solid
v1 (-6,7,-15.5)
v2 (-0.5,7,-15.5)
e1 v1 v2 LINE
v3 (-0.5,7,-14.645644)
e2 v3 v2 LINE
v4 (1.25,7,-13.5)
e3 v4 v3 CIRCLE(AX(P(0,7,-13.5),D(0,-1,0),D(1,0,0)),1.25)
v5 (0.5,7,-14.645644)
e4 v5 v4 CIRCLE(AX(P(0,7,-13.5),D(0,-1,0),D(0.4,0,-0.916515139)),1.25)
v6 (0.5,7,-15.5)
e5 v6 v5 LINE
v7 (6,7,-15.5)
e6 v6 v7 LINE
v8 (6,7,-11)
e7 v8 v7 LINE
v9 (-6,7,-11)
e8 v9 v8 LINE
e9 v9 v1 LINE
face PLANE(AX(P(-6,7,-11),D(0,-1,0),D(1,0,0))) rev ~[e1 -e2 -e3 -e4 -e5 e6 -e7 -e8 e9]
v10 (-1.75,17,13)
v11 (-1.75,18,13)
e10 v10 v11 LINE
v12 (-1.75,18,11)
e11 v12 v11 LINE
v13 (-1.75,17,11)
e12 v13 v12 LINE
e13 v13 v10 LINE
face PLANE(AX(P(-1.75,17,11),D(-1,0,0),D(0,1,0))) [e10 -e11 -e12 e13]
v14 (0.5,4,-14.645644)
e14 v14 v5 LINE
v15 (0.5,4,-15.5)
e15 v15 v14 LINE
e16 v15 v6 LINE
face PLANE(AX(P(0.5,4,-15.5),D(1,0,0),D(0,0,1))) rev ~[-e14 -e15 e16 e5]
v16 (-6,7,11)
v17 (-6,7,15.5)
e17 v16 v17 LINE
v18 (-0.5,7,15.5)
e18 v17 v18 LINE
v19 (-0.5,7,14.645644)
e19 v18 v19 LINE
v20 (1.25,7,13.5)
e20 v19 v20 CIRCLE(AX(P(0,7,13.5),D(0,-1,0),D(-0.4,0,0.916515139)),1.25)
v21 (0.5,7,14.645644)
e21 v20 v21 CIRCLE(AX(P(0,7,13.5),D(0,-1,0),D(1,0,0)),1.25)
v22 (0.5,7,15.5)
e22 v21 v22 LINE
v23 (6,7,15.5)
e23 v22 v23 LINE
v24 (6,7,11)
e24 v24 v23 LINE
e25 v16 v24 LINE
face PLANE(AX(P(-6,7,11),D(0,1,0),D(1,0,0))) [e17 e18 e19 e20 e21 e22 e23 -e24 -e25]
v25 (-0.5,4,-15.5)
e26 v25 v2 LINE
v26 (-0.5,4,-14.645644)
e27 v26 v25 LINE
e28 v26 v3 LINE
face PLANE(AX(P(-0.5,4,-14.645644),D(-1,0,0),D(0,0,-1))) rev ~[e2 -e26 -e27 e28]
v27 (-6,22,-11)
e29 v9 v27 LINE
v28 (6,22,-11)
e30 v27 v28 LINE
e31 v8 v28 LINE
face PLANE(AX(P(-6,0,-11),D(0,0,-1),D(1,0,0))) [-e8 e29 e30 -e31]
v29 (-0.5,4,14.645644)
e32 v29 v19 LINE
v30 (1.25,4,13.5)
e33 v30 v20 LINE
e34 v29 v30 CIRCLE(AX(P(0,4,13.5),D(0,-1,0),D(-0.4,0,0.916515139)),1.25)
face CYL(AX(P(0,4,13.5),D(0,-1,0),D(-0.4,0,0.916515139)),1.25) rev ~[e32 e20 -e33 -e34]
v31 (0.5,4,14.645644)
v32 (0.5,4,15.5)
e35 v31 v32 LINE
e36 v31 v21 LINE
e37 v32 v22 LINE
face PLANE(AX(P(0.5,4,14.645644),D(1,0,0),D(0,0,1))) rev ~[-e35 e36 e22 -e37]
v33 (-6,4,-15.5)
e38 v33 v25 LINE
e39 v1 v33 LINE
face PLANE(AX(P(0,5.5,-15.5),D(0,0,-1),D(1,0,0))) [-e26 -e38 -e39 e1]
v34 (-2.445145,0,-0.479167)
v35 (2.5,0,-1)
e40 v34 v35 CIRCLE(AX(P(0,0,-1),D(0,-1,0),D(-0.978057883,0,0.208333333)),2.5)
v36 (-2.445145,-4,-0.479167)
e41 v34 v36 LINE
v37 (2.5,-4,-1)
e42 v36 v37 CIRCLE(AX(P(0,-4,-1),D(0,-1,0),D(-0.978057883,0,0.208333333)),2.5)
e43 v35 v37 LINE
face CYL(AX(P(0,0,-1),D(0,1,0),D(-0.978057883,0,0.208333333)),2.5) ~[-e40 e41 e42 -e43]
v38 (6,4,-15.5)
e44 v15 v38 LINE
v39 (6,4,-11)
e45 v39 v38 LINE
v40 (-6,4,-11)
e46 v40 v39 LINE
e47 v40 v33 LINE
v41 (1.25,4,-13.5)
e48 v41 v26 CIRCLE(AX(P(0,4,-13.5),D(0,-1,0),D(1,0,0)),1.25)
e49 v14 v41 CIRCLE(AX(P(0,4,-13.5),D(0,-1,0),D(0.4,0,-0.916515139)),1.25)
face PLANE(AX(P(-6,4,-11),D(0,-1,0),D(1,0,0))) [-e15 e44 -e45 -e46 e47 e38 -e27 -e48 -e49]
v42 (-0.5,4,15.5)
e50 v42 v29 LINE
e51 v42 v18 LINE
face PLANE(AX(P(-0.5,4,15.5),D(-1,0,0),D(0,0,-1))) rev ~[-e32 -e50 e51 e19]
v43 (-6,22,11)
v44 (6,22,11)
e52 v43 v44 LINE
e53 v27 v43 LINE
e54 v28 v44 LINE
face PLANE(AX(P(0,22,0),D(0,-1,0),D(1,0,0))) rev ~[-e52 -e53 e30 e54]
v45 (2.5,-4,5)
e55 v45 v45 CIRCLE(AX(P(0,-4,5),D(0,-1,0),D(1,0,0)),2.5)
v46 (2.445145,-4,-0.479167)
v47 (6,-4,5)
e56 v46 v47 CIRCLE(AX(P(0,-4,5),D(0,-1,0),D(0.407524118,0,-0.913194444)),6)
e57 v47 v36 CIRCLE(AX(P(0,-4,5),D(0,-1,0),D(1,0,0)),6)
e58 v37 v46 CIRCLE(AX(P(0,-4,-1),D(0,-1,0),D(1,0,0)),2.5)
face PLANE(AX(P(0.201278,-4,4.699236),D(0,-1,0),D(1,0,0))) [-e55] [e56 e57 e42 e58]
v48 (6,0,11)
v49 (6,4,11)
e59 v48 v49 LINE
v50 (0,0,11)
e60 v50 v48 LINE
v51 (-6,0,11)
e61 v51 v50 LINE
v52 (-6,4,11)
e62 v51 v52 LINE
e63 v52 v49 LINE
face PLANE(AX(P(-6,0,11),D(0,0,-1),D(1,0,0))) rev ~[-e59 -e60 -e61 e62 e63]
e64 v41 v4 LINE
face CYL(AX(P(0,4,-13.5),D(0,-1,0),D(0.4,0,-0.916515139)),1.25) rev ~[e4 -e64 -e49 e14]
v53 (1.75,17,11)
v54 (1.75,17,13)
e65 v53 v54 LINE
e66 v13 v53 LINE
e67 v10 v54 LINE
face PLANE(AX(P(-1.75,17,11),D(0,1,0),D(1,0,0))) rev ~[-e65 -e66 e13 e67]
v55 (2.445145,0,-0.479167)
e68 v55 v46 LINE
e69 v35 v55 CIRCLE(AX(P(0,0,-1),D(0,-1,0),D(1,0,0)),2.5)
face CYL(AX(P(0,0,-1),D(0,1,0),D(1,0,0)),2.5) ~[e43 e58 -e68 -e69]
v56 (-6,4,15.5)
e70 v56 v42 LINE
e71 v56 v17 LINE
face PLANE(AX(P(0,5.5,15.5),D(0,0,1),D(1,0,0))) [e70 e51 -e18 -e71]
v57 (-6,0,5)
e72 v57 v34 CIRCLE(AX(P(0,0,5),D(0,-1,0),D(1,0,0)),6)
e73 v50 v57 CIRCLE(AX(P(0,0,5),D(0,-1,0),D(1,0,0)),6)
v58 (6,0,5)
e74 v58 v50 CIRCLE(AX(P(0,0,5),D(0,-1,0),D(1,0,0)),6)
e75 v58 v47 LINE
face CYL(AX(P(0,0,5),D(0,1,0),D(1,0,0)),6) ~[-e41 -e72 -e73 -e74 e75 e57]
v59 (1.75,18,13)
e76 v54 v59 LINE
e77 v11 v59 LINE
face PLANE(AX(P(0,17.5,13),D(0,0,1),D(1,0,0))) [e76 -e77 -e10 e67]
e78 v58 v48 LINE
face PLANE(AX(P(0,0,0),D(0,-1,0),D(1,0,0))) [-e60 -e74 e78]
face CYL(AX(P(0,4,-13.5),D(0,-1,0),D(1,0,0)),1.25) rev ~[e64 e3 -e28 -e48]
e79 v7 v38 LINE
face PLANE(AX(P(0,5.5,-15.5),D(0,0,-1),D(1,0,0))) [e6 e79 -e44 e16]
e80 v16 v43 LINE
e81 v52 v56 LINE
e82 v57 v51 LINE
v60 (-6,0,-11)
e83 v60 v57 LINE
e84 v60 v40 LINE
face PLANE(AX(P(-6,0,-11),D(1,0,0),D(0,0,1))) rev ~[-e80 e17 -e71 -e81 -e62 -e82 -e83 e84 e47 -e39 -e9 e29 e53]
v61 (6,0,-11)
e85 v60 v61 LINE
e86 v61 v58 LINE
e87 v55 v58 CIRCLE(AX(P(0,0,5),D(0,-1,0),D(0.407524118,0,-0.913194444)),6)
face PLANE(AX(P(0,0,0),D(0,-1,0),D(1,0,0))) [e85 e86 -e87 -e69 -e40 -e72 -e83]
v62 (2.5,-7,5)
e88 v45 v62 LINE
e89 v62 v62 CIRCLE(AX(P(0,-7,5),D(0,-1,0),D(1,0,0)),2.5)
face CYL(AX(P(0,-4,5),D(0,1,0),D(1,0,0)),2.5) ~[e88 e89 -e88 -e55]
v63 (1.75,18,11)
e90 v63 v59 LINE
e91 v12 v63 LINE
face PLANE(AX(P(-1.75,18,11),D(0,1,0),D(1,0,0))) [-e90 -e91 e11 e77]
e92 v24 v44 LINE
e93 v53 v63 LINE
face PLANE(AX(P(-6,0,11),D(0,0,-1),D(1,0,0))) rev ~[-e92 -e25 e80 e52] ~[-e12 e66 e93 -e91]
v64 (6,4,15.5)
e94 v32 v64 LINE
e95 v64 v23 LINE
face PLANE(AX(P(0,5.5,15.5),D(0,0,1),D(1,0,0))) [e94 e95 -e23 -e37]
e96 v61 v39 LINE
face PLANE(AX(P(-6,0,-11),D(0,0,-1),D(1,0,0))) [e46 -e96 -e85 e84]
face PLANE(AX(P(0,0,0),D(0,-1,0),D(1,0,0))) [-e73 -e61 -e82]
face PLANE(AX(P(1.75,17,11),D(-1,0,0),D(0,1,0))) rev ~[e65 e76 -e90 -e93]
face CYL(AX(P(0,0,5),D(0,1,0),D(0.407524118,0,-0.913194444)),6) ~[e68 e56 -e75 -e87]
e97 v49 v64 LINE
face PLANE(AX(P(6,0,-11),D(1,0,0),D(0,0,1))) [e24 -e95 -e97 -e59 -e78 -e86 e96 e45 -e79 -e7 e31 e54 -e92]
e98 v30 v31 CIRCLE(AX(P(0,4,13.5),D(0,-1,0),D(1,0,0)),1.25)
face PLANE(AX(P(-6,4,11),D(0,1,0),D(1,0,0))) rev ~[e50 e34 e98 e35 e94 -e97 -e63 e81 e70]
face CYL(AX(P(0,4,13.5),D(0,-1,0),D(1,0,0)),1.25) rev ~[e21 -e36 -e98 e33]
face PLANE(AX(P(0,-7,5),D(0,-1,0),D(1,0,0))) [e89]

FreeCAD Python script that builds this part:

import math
import FreeCAD as App
import Part
import Sketcher

doc = App.newDocument("Part")
body = doc.addObject("PartDesign::Body", "Body")

# Sketch on XZ plane
sketch1 = body.newObject("Sketcher::SketchObject", "Sketch")
sketch1.AttachmentSupport = (doc.getObject("XZ_Plane"), [""])
sketch1.MapMode = "FlatFace"
sketch1.addGeometry([
    Part.LineSegment(App.Vector(-6, 11, 0), App.Vector(-6, -11, 0)),
    Part.LineSegment(App.Vector(-6, -11, 0), App.Vector(6, -11, 0)),
    Part.LineSegment(App.Vector(6, -11, 0), App.Vector(6, 11, 0)),
    Part.LineSegment(App.Vector(6, 11, 0), App.Vector(-6, 11, 0)),
], False)
sketch1.addConstraint([
    Sketcher.Constraint("Coincident", 0, 2, 1, 1),
    Sketcher.Constraint("Coincident", 1, 2, 2, 1),
    Sketcher.Constraint("Coincident", 2, 2, 3, 1),
    Sketcher.Constraint("Coincident", 3, 2, 0, 1),
    Sketcher.Constraint("Vertical", 0),
    Sketcher.Constraint("Horizontal", 1),
    Sketcher.Constraint("Vertical", 2),
    Sketcher.Constraint("Horizontal", 3),
    Sketcher.Constraint("Symmetric", 0, 2, 2, 2, -1, 1),
    Sketcher.Constraint("DistanceX", 1, 1, 1, 2, 12.0),
    Sketcher.Constraint("DistanceY", 0, 2, 0, 1, 22.0),
])
pad1 = body.newObject("PartDesign::Pad", "Pad")
pad1.Profile = sketch1
pad1.Length = 22
pad1.Reversed = True

# Sketch on XZ plane
sketch2 = body.newObject("Sketcher::SketchObject", "Sketch001")
sketch2.AttachmentSupport = (doc.getObject("XZ_Plane"), [""])
sketch2.MapMode = "FlatFace"
sketch2.addGeometry([
    Part.ArcOfCircle(Part.Circle(App.Vector(0, 5, 0), App.Vector(0, 0, 1), 6), math.radians(-66), math.radians(0)),
    Part.ArcOfCircle(Part.Circle(App.Vector(0, 5, 0), App.Vector(0, 0, 1), 6), math.radians(0), math.radians(246)),
    Part.ArcOfCircle(Part.Circle(App.Vector(0, -1, 0), App.Vector(0, 0, 1), 2.5), math.radians(168), math.radians(360)),
    Part.ArcOfCircle(Part.Circle(App.Vector(0, -1, 0), App.Vector(0, 0, 1), 2.5), math.radians(0), math.radians(12.02)),
], False)
sketch2.addConstraint([
    Sketcher.Constraint("Tangent", 0, 2, 1, 1),
    Sketcher.Constraint("Coincident", 1, 2, 2, 1),
    Sketcher.Constraint("Tangent", 2, 2, 3, 1),
    Sketcher.Constraint("Coincident", 3, 2, 0, 1),
    Sketcher.Constraint("Equal", 0, 1),
    Sketcher.Constraint("Equal", 2, 3),
    Sketcher.Constraint("Symmetric", 1, 2, 3, 2, -2),
    Sketcher.Constraint("Horizontal", 1, 3, 0, 2),
    Sketcher.Constraint("Horizontal", 3, 3, 2, 2),
    Sketcher.Constraint("Radius", 0, 6.0),
    Sketcher.Constraint("Radius", 2, 2.5),
    Sketcher.Constraint("DistanceY", -1, 1, 0, 3, 5.0),
    Sketcher.Constraint("DistanceY", 2, 3, -1, 1, 1.0),
])
pad2 = body.newObject("PartDesign::Pad", "Pad001")
pad2.Profile = sketch2
pad2.Length = 4

# Sketch on XZ plane
sketch3 = body.newObject("Sketcher::SketchObject", "Sketch002")
sketch3.AttachmentSupport = (doc.getObject("XZ_Plane"), [""])
sketch3.MapMode = "FlatFace"
sketch3.AttachmentOffset = App.Placement(App.Vector(0, 0, 4), App.Rotation())
sketch3.addGeometry(Part.Circle(App.Vector(0, 5, 0), App.Vector(0, 0, 1), 2.5), False)
sketch3.addConstraint([
    Sketcher.Constraint("PointOnObject", 0, 3, -2),
    Sketcher.Constraint("Diameter", 0, 5.0),
    Sketcher.Constraint("DistanceY", -1, 1, 0, 3, 5.0),
])
pad3 = body.newObject("PartDesign::Pad", "Pad002")
pad3.Profile = sketch3
pad3.Length = 3

# Sketch on XY plane
sketch4 = body.newObject("Sketcher::SketchObject", "Sketch003")
sketch4.AttachmentSupport = (doc.getObject("XY_Plane"), [""])
sketch4.MapMode = "FlatFace"
sketch4.AttachmentOffset = App.Placement(App.Vector(0, 0, 11), App.Rotation())
sketch4.addGeometry([
    Part.LineSegment(App.Vector(-6, 7, 0), App.Vector(-6, 4, 0)),
    Part.LineSegment(App.Vector(-6, 4, 0), App.Vector(6, 4, 0)),
    Part.LineSegment(App.Vector(6, 4, 0), App.Vector(6, 7, 0)),
    Part.LineSegment(App.Vector(6, 7, 0), App.Vector(-6, 7, 0)),
], False)
sketch4.addConstraint([
    Sketcher.Constraint("Coincident", 0, 2, 1, 1),
    Sketcher.Constraint("Coincident", 1, 2, 2, 1),
    Sketcher.Constraint("Coincident", 2, 2, 3, 1),
    Sketcher.Constraint("Coincident", 3, 2, 0, 1),
    Sketcher.Constraint("Vertical", 0),
    Sketcher.Constraint("Horizontal", 1),
    Sketcher.Constraint("Vertical", 2),
    Sketcher.Constraint("Horizontal", 3),
    Sketcher.Constraint("DistanceX", 1, 1, 1, 2, 12.0),
    Sketcher.Constraint("DistanceY", 0, 2, 0, 1, 3.0),
    Sketcher.Constraint("DistanceX", 0, 2, -1, 1, 6.0),
    Sketcher.Constraint("DistanceY", -1, 1, 0, 2, 4.0),
])
pad4 = body.newObject("PartDesign::Pad", "Pad003")
pad4.Profile = sketch4
pad4.Length = 4.5

# Sketch on XY plane
sketch5 = body.newObject("Sketcher::SketchObject", "Sketch004")
sketch5.AttachmentSupport = (doc.getObject("XY_Plane"), [""])
sketch5.MapMode = "FlatFace"
sketch5.AttachmentOffset = App.Placement(App.Vector(0, 0, -11), App.Rotation())
sketch5.addGeometry([
    Part.LineSegment(App.Vector(-6, 4, 0), App.Vector(-6, 7, 0)),
    Part.LineSegment(App.Vector(-6, 7, 0), App.Vector(6, 7, 0)),
    Part.LineSegment(App.Vector(6, 7, 0), App.Vector(6, 4, 0)),
    Part.LineSegment(App.Vector(6, 4, 0), App.Vector(-6, 4, 0)),
], False)
sketch5.addConstraint([
    Sketcher.Constraint("Coincident", 0, 2, 1, 1),
    Sketcher.Constraint("Coincident", 1, 2, 2, 1),
    Sketcher.Constraint("Coincident", 2, 2, 3, 1),
    Sketcher.Constraint("Coincident", 3, 2, 0, 1),
    Sketcher.Constraint("Vertical", 0),
    Sketcher.Constraint("Horizontal", 1),
    Sketcher.Constraint("Vertical", 2),
    Sketcher.Constraint("Horizontal", 3),
    Sketcher.Constraint("DistanceX", 1, 1, 1, 2, 12.0),
    Sketcher.Constraint("DistanceY", 0, 1, 0, 2, 3.0),
    Sketcher.Constraint("DistanceX", 0, 2, -1, 1, 6.0),
    Sketcher.Constraint("DistanceY", -1, 1, 0, 2, 7.0),
])
pad5 = body.newObject("PartDesign::Pad", "Pad004")
pad5.Profile = sketch5
pad5.Length = 4.5
pad5.Reversed = True

# Sketch on XZ plane
sketch6 = body.newObject("Sketcher::SketchObject", "Sketch005")
sketch6.AttachmentSupport = (doc.getObject("XZ_Plane"), [""])
sketch6.MapMode = "FlatFace"
sketch6.AttachmentOffset = App.Placement(App.Vector(0, 0, -4), App.Rotation())
sketch6.addGeometry([
    Part.ArcOfCircle(Part.Circle(App.Vector(0, 13.5, 0), App.Vector(0, 0, 1), 1.2), math.radians(114), math.radians(360)),  # 0
    Part.ArcOfCircle(Part.Circle(App.Vector(0, 13.5, 0), App.Vector(0, 0, 1), 1.2), math.radians(0), math.radians(66)),  # 1
    Part.LineSegment(App.Vector(0.5, 14.6, 0), App.Vector(0.5, 15.5, 0)),  # 2
    Part.LineSegment(App.Vector(0.5, 15.5, 0), App.Vector(-0.5, 15.5, 0)),  # 3
    Part.LineSegment(App.Vector(-0.5, 15.5, 0), App.Vector(-0.5, 14.6, 0)),  # 4
], False)
sketch6.addConstraint([
    Sketcher.Constraint("Tangent", 0, 2, 1, 1),
    Sketcher.Constraint("Coincident", 1, 2, 2, 1),
    Sketcher.Constraint("Coincident", 2, 2, 3, 1),
    Sketcher.Constraint("Coincident", 3, 2, 4, 1),
    Sketcher.Constraint("Coincident", 4, 2, 0, 1),
    Sketcher.Constraint("Vertical", 2),
    Sketcher.Constraint("Horizontal", 3),
    Sketcher.Constraint("Vertical", 4),
    Sketcher.Constraint("Equal", 0, 1),
    Sketcher.Constraint("Symmetric", 1, 2, 4, 2, -2),
    Sketcher.Constraint("Horizontal", 1, 3, 0, 2),
    Sketcher.Constraint("DistanceX", 3, 2, 3, 1, 1.0),
    Sketcher.Constraint("Radius", 0, 1.25),
    Sketcher.Constraint("DistanceY", 0, 3, 2, 2, 2.0),
    Sketcher.Constraint("DistanceY", -1, 1, 0, 3, 13.5),
])
pocket1 = body.newObject("PartDesign::Pocket", "Pocket")
pocket1.Profile = sketch6
pocket1.Type = "ThroughAll"

# Sketch on XZ plane
sketch7 = body.newObject("Sketcher::SketchObject", "Sketch006")
sketch7.AttachmentSupport = (doc.getObject("XZ_Plane"), [""])
sketch7.MapMode = "FlatFace"
sketch7.AttachmentOffset = App.Placement(App.Vector(0, 0, -4), App.Rotation())
sketch7.addGeometry([
    Part.ArcOfCircle(Part.Circle(App.Vector(0, -13.5, 0), App.Vector(0, 0, 1), 1.2), math.radians(-66), math.radians(0)),  # 0
    Part.ArcOfCircle(Part.Circle(App.Vector(0, -13.5, 0), App.Vector(0, 0, 1), 1.2), math.radians(0), math.radians(246)),  # 1
    Part.LineSegment(App.Vector(-0.5, -14.6, 0), App.Vector(-0.5, -15.5, 0)),  # 2
    Part.LineSegment(App.Vector(-0.5, -15.5, 0), App.Vector(0.5, -15.5, 0)),  # 3
    Part.LineSegment(App.Vector(0.5, -15.5, 0), App.Vector(0.5, -14.6, 0)),  # 4
], False)
sketch7.addConstraint([
    Sketcher.Constraint("Tangent", 0, 2, 1, 1),
    Sketcher.Constraint("Coincident", 1, 2, 2, 1),
    Sketcher.Constraint("Coincident", 2, 2, 3, 1),
    Sketcher.Constraint("Coincident", 3, 2, 4, 1),
    Sketcher.Constraint("Coincident", 4, 2, 0, 1),
    Sketcher.Constraint("Vertical", 2),
    Sketcher.Constraint("Horizontal", 3),
    Sketcher.Constraint("Vertical", 4),
    Sketcher.Constraint("Equal", 0, 1),
    Sketcher.Constraint("Symmetric", 1, 2, 4, 2, -2),
    Sketcher.Constraint("Horizontal", 1, 3, 0, 2),
    Sketcher.Constraint("DistanceX", 3, 1, 3, 2, 1.0),
    Sketcher.Constraint("Radius", 0, 1.25),
    Sketcher.Constraint("DistanceY", 2, 2, 0, 3, 2.0),
    Sketcher.Constraint("DistanceY", 0, 3, -1, 1, 13.5),
])
pocket2 = body.newObject("PartDesign::Pocket", "Pocket001")
pocket2.Profile = sketch7
pocket2.Type = "ThroughAll"

# Sketch on XY plane
sketch8 = body.newObject("Sketcher::SketchObject", "Sketch007")
sketch8.AttachmentSupport = (doc.getObject("XY_Plane"), [""])
sketch8.MapMode = "FlatFace"
sketch8.AttachmentOffset = App.Placement(App.Vector(0, 0, 11), App.Rotation())
sketch8.addGeometry([
    Part.LineSegment(App.Vector(-1.8, 18, 0), App.Vector(-1.8, 17, 0)),
    Part.LineSegment(App.Vector(-1.8, 17, 0), App.Vector(1.8, 17, 0)),
    Part.LineSegment(App.Vector(1.8, 17, 0), App.Vector(1.8, 18, 0)),
    Part.LineSegment(App.Vector(1.8, 18, 0), App.Vector(-1.8, 18, 0)),
], False)
sketch8.addConstraint([
    Sketcher.Constraint("Coincident", 0, 2, 1, 1),
    Sketcher.Constraint("Coincident", 1, 2, 2, 1),
    Sketcher.Constraint("Coincident", 2, 2, 3, 1),
    Sketcher.Constraint("Coincident", 3, 2, 0, 1),
    Sketcher.Constraint("Vertical", 0),
    Sketcher.Constraint("Horizontal", 1),
    Sketcher.Constraint("Vertical", 2),
    Sketcher.Constraint("Horizontal", 3),
    Sketcher.Constraint("DistanceY", 0, 2, 0, 1, 1.0),
    Sketcher.Constraint("DistanceX", 1, 1, 1, 2, 3.5),
    Sketcher.Constraint("DistanceY", -1, 1, 0, 2, 17.0),
    Sketcher.Constraint("DistanceX", 0, 2, -1, 1, 1.75),
])
pad6 = body.newObject("PartDesign::Pad", "Pad005")
pad6.Profile = sketch8
pad6.Length = 2

doc.recompute()
